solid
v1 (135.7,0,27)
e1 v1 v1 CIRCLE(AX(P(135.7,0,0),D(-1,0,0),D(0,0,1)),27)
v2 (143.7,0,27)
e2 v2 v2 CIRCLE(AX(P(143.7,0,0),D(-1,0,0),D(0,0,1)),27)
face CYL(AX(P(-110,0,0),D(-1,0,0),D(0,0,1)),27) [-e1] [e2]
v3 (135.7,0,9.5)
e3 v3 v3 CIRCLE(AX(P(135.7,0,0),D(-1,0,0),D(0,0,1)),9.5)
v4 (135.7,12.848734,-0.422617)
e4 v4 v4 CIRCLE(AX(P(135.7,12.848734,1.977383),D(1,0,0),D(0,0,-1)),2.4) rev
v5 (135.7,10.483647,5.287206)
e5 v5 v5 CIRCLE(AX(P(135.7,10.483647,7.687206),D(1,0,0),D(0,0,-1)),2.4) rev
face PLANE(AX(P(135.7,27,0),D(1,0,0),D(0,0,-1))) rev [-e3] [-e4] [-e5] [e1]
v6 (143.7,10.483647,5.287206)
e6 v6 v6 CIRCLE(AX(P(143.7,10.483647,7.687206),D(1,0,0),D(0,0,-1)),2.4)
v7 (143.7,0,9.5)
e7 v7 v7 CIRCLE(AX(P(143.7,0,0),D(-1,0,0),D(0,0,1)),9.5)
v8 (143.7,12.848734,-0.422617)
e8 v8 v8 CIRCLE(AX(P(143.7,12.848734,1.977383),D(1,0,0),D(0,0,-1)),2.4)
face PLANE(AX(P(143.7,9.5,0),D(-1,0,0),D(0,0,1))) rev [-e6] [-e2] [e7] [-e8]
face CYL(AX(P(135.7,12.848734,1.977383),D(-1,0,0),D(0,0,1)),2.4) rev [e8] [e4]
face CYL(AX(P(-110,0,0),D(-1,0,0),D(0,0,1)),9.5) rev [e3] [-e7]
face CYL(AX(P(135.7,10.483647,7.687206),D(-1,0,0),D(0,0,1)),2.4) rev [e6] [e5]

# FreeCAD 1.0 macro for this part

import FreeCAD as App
import Part
import Sketcher
from FreeCAD import Vector

doc = App.newDocument("Part")
body = doc.addObject("PartDesign::Body", "Body")

sketch1 = body.newObject("Sketcher::SketchObject", "Sketch")
sketch1.AttachmentSupport = (doc.getObject("XY_Plane"), [""])
sketch1.MapMode = "FlatFace"
sketch1.addGeometry([
    Part.LineSegment(Vector(136, 27, 0), Vector(136, 10, 0)),
    Part.LineSegment(Vector(136, 10, 0), Vector(144, 10, 0)),
    Part.LineSegment(Vector(144, 10, 0), Vector(144, 27, 0)),
    Part.LineSegment(Vector(144, 27, 0), Vector(136, 27, 0)),
], False)
sketch1.addConstraint([
    Sketcher.Constraint("Coincident", 0, 2, 1, 1),
    Sketcher.Constraint("Coincident", 1, 2, 2, 1),
    Sketcher.Constraint("Coincident", 2, 2, 3, 1),
    Sketcher.Constraint("Coincident", 3, 2, 0, 1),
    Sketcher.Constraint("Vertical", 0),
    Sketcher.Constraint("Horizontal", 1),
    Sketcher.Constraint("Vertical", 2),
    Sketcher.Constraint("Horizontal", 3),
    Sketcher.Constraint("DistanceX", 1, 1, 1, 2, 8.0),
    Sketcher.Constraint("DistanceY", 0, 2, 0, 1, 17.5),
    Sketcher.Constraint("DistanceY", -1, 1, 2, 2, 27.0),
    Sketcher.Constraint("DistanceX", -1, 1, 0, 2, 135.7),
])
revolution = body.newObject("PartDesign::Revolution", "Revolution")
revolution.Profile = sketch1
revolution.ReferenceAxis = (sketch1, ["H_Axis"])
revolution.Angle = 360

sketch2 = body.newObject("Sketcher::SketchObject", "Sketch001")
sketch2.AttachmentSupport = (doc.getObject("YZ_Plane"), [""])
sketch2.MapMode = "FlatFace"
sketch2.addGeometry([
    Part.Circle(Vector(12.8, 2, 0), Vector(0, 0, 1), 2.4),
    Part.Circle(Vector(10.5, 7.7, 0), Vector(0, 0, 1), 2.4),
], False)
sketch2.addConstraint([
    Sketcher.Constraint("Equal", 0, 1),
    Sketcher.Constraint("Diameter", 0, 4.8),
    Sketcher.Constraint("DistanceX", -1, 1, 0, 3, 12.848734),
    Sketcher.Constraint("DistanceY", -1, 1, 0, 3, 1.977383),
    Sketcher.Constraint("DistanceX", -1, 1, 1, 3, 10.483647),
    Sketcher.Constraint("DistanceY", -1, 1, 1, 3, 7.687206),
])
pocket1 = body.newObject("PartDesign::Pocket", "Pocket")
pocket1.Profile = sketch2
pocket1.Type = "ThroughAll"
pocket1.Midplane = True

doc.recompute()
